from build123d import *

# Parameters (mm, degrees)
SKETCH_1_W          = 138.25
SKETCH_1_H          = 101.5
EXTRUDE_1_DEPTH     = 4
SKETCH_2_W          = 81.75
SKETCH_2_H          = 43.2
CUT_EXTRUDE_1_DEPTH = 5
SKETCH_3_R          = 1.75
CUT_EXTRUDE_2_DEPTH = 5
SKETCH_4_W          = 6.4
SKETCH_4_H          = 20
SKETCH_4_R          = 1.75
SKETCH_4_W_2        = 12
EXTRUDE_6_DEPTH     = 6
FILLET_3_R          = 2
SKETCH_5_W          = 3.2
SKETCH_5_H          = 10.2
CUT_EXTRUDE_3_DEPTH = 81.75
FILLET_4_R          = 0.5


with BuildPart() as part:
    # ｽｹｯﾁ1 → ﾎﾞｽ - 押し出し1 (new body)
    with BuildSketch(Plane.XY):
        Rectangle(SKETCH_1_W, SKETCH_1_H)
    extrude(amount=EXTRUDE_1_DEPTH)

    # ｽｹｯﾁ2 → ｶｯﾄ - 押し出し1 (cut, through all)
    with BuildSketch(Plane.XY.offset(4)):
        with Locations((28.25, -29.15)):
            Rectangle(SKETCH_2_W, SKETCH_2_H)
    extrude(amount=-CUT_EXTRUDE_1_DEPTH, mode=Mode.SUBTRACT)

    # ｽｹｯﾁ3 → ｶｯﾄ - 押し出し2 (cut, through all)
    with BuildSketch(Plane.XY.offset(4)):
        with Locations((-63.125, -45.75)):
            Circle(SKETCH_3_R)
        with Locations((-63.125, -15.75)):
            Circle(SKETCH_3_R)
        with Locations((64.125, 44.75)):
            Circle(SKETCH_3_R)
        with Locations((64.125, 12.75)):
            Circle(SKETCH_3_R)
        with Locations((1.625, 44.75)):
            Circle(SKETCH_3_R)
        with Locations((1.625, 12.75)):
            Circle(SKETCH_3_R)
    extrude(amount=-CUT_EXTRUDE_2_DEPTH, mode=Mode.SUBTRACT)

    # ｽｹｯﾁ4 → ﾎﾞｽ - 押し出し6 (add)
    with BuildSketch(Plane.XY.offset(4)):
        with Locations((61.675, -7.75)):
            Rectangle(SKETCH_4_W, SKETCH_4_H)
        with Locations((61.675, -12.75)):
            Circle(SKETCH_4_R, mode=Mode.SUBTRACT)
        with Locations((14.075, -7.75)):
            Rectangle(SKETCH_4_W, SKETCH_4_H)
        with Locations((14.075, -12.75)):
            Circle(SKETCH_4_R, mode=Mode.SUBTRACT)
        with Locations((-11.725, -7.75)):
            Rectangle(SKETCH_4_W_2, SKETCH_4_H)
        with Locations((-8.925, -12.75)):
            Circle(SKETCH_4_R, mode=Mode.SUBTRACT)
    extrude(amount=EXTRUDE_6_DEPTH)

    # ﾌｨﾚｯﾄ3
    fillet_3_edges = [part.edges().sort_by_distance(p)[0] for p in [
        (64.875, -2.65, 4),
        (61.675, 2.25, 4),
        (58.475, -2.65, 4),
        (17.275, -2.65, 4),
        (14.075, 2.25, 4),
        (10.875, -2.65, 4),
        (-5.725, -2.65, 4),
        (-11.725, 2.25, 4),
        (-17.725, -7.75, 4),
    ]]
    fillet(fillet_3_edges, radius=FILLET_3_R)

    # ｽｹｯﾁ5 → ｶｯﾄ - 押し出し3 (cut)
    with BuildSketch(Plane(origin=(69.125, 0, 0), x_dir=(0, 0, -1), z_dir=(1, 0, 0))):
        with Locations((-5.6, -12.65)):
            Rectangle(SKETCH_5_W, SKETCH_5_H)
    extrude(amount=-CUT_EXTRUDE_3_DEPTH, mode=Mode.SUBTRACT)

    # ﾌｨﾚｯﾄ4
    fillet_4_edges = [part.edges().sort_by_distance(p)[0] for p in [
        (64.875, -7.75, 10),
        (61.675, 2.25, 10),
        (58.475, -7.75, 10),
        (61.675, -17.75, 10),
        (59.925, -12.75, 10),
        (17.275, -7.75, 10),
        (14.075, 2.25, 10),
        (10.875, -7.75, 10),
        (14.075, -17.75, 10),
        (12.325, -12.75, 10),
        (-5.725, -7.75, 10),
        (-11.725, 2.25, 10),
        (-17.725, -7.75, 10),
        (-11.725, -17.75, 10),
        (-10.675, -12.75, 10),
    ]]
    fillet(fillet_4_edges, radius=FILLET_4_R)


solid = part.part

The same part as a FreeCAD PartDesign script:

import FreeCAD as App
import Part
import Sketcher
Q = App.Units.Quantity


def edges_at(feature, points):
    """Names of the edges that pass closest to the given points."""
    edges = feature.Shape.Edges
    near = lambda p: min(range(len(edges)), key=lambda i: edges[i].distToShape(Part.Vertex(*p))[0])
    return sorted({f"Edge{near(p) + 1}" for p in points})


def add_polygon(sketch, points):
    """Adds a closed chain of lines whose ends are joined by coincident constraints."""
    first, n = sketch.GeometryCount, len(points)
    for a, b in zip(points, points[1:] + points[:1]):
        sketch.addGeometry(Part.LineSegment(App.Vector(*a, 0), App.Vector(*b, 0)), False)
    for i in range(n):
        sketch.addConstraint(Sketcher.Constraint("Coincident", first + i, 2, first + (i + 1) % n, 1))

doc = App.newDocument("Part")
params = doc.addObject("Spreadsheet::Sheet", "Params")
for row, (alias, value) in enumerate([
    ("sketch1_height", "101.5 mm"),
    ("sketch1_width", "138.25 mm"),
    ("pad1_length", "4 mm"),
    ("sketch2_height", "43.2 mm"),
    ("sketch2_width", "81.75 mm"),
    ("sketch3_diameter", "3.5 mm"),
    ("sketch4_diameter", "3.5 mm"),
    ("sketch4_width", "12 mm"),
    ("sketch4_height", "20 mm"),
    ("sketch4_width2", "6.4 mm"),
    ("pad2_length", "6 mm"),
    ("fillet_radius", "2 mm"),
    ("sketch5_width", "10.2 mm"),
    ("sketch5_height", "3.2 mm"),
    ("pocket3_length", "81.75 mm"),
    ("fillet2_radius", "0.5 mm"),
], start=1):
    params.set(f"A{row}", alias)
    params.set(f"B{row}", "=" + value)
    params.setAlias(f"B{row}", alias)

body = doc.addObject("PartDesign::Body", "Body")

# Sketch on XY plane
sketch1 = doc.addObject("Sketcher::SketchObject", "Sketch")
body.addObject(sketch1)
sketch1.AttachmentSupport = (doc.XY_Plane, [""])
sketch1.MapMode = "FlatFace"
add_polygon(sketch1, [(-69, 51), (-69, -51), (69, -51), (69, 51)])  # lines 0-3
sketch1.addConstraint([
    Sketcher.Constraint("Vertical", 0),
    Sketcher.Constraint("Horizontal", 1),
    Sketcher.Constraint("Vertical", 2),
    Sketcher.Constraint("Horizontal", 3),
    Sketcher.Constraint("Symmetric", 0, 2, 2, 2, -1, 1),
    Sketcher.Constraint("DistanceY", 0, 2, 0, 1, Q("101.5 mm")),
    Sketcher.Constraint("DistanceX", 1, 1, 1, 2, Q("138.25 mm")),
])
sketch1.setExpression("Constraints[9]", "Params.sketch1_height")
sketch1.setExpression("Constraints[10]", "Params.sketch1_width")
pad1 = doc.addObject("PartDesign::Pad", "Pad")
body.addObject(pad1)
pad1.Profile = sketch1
pad1.setExpression("Length", "Params.pad1_length")

# Sketch on XY plane
sketch2 = doc.addObject("Sketcher::SketchObject", "Sketch001")
body.addObject(sketch2)
sketch2.AttachmentSupport = (doc.XY_Plane, [""])
sketch2.MapMode = "FlatFace"
sketch2.AttachmentOffset = App.Placement(App.Vector(0, 0, 4), App.Rotation())
add_polygon(sketch2, [(-13, -8), (-13, -51), (69, -51), (69, -8)])  # lines 0-3
sketch2.addConstraint([
    Sketcher.Constraint("Vertical", 0),
    Sketcher.Constraint("Horizontal", 1),
    Sketcher.Constraint("Vertical", 2),
    Sketcher.Constraint("Horizontal", 3),
    Sketcher.Constraint("DistanceY", 0, 2, 0, 1, Q("43.2 mm")),
    Sketcher.Constraint("DistanceX", 1, 1, 1, 2, Q("81.75 mm")),
    Sketcher.Constraint("DistanceY", 0, 2, -1, 1, Q("50.75 mm")),
    Sketcher.Constraint("DistanceX", 0, 2, -1, 1, Q("12.625 mm")),
])
sketch2.setExpression("Constraints[8]", "Params.sketch2_height")
sketch2.setExpression("Constraints[9]", "Params.sketch2_width")
pocket1 = doc.addObject("PartDesign::Pocket", "Pocket")
body.addObject(pocket1)
pocket1.Profile = sketch2
pocket1.Type = "ThroughAll"

# Sketch on XY plane
sketch3 = doc.addObject("Sketcher::SketchObject", "Sketch002")
body.addObject(sketch3)
sketch3.AttachmentSupport = (doc.XY_Plane, [""])
sketch3.MapMode = "FlatFace"
sketch3.AttachmentOffset = App.Placement(App.Vector(0, 0, 4), App.Rotation())
sketch3.addGeometry([
    Part.Circle(App.Vector(-63.1, -45.8, 0), App.Vector(0, 0, 1), 1.8),  # 0
    Part.Circle(App.Vector(-63.1, -15.8, 0), App.Vector(0, 0, 1), 1.8),  # 1
    Part.Circle(App.Vector(64.1, 44.8, 0), App.Vector(0, 0, 1), 1.8),  # 2
    Part.Circle(App.Vector(64.1, 12.8, 0), App.Vector(0, 0, 1), 1.8),  # 3
    Part.Circle(App.Vector(1.6, 44.8, 0), App.Vector(0, 0, 1), 1.8),  # 4
    Part.Circle(App.Vector(1.6, 12.8, 0), App.Vector(0, 0, 1), 1.8),  # 5
], False)
sketch3.addConstraint([
    Sketcher.Constraint("Equal", 0, 1),
    Sketcher.Constraint("Equal", 1, 2),
    Sketcher.Constraint("Equal", 2, 3),
    Sketcher.Constraint("Equal", 3, 4),
    Sketcher.Constraint("Equal", 4, 5),
    Sketcher.Constraint("Horizontal", 2, 3, 4, 3),
    Sketcher.Constraint("Horizontal", 3, 3, 5, 3),
    Sketcher.Constraint("Vertical", 0, 3, 1, 3),
    Sketcher.Constraint("Vertical", 2, 3, 3, 3),
    Sketcher.Constraint("Vertical", 4, 3, 5, 3),
    Sketcher.Constraint("Diameter", 0, Q("3.5 mm")),
    Sketcher.Constraint("DistanceY", 0, 3, 1, 3, Q("30 mm")),
    Sketcher.Constraint("DistanceY", 3, 3, 2, 3, Q("32 mm")),
    Sketcher.Constraint("DistanceY", 1, 3, 2, 3, Q("60.5 mm")),
    Sketcher.Constraint("DistanceX", 4, 3, 2, 3, Q("62.5 mm")),
    Sketcher.Constraint("DistanceY", 0, 3, -1, 1, Q("45.75 mm")),
    Sketcher.Constraint("DistanceX", 1, 3, 2, 3, Q("127.25 mm")),
    Sketcher.Constraint("DistanceX", 0, 3, -1, 1, Q("63.125 mm")),
])
sketch3.setExpression("Constraints[10]", "Params.sketch3_diameter")
pocket2 = doc.addObject("PartDesign::Pocket", "Pocket001")
body.addObject(pocket2)
pocket2.Profile = sketch3
pocket2.Type = "ThroughAll"

# Sketch on XY plane
sketch4 = doc.addObject("Sketcher::SketchObject", "Sketch003")
body.addObject(sketch4)
sketch4.AttachmentSupport = (doc.XY_Plane, [""])
sketch4.MapMode = "FlatFace"
sketch4.AttachmentOffset = App.Placement(App.Vector(0, 0, 4), App.Rotation())
add_polygon(sketch4, [(58.5, 2.2), (58.5, -17.8), (64.9, -17.8), (64.9, 2.2)])  # lines 0-3
sketch4.addGeometry(Part.Circle(App.Vector(61.7, -12.8, 0), App.Vector(0, 0, 1), 1.8), False)  # 4
add_polygon(sketch4, [(10.9, 2.2), (10.9, -17.8), (17.3, -17.8), (17.3, 2.2)])  # lines 5-8
sketch4.addGeometry(Part.Circle(App.Vector(14.1, -12.8, 0), App.Vector(0, 0, 1), 1.8), False)  # 9
add_polygon(sketch4, [(-17.7, 2.2), (-17.7, -17.8), (-5.7, -17.8), (-5.7, 2.2)])  # lines 10-13
sketch4.addGeometry(Part.Circle(App.Vector(-8.9, -12.8, 0), App.Vector(0, 0, 1), 1.8), False)  # 14
sketch4.addConstraint([
    Sketcher.Constraint("Vertical", 0),
    Sketcher.Constraint("Horizontal", 1),
    Sketcher.Constraint("Vertical", 2),
    Sketcher.Constraint("Horizontal", 3),
    Sketcher.Constraint("Vertical", 5),
    Sketcher.Constraint("Horizontal", 6),
    Sketcher.Constraint("Vertical", 7),
    Sketcher.Constraint("Horizontal", 8),
    Sketcher.Constraint("Vertical", 10),
    Sketcher.Constraint("Horizontal", 11),
    Sketcher.Constraint("Vertical", 12),
    Sketcher.Constraint("Horizontal", 13),
    Sketcher.Constraint("Equal", 4, 9),
    Sketcher.Constraint("Equal", 9, 14),
    Sketcher.Constraint("Horizontal", 4, 3, 9, 3),
    Sketcher.Constraint("Horizontal", 9, 3, 14, 3),
    Sketcher.Constraint("Horizontal", 1, 2, 5, 2),
    Sketcher.Constraint("Horizontal", 3, 2, 7, 2),
    Sketcher.Constraint("Horizontal", 6, 2, 10, 2),
    Sketcher.Constraint("Horizontal", 8, 2, 12, 2),
    Sketcher.Constraint("Equal", 3, 6),
    Sketcher.Constraint("Diameter", 4, Q("3.5 mm")),
    Sketcher.Constraint("DistanceX", 11, 1, 11, 2, Q("12 mm")),
    Sketcher.Constraint("DistanceY", 0, 2, 0, 1, Q("20 mm")),
    Sketcher.Constraint("DistanceX", 1, 1, 1, 2, Q("6.4 mm")),
    Sketcher.Constraint("DistanceX", 14, 3, 9, 3, Q("23 mm")),
    Sketcher.Constraint("DistanceY", 0, 2, 4, 3, Q("5 mm")),
    Sketcher.Constraint("DistanceX", 10, 2, 6, 2, Q("35 mm")),
    Sketcher.Constraint("DistanceX", 9, 3, 4, 3, Q("47.6 mm")),
    Sketcher.Constraint("DistanceX", 0, 2, 4, 3, Q("3.2 mm")),
    Sketcher.Constraint("DistanceX", 5, 2, 9, 3, Q("3.2 mm")),
    Sketcher.Constraint("DistanceY", 4, 3, -1, 1, Q("12.75 mm")),
    Sketcher.Constraint("DistanceX", -1, 1, 4, 3, Q("61.675 mm")),
])
sketch4.setExpression("Constraints[33]", "Params.sketch4_diameter")
sketch4.setExpression("Constraints[34]", "Params.sketch4_width")
sketch4.setExpression("Constraints[35]", "Params.sketch4_height")
sketch4.setExpression("Constraints[36]", "Params.sketch4_width2")
pad2 = doc.addObject("PartDesign::Pad", "Pad001")
body.addObject(pad2)
pad2.Profile = sketch4
pad2.setExpression("Length", "Params.pad2_length")
doc.recompute()

fillet = doc.addObject("PartDesign::Fillet", "Fillet")
body.addObject(fillet)
fillet.Base = (pad2, edges_at(pad2, [
    (64.875, -2.65, 4),
    (61.675, 2.25, 4),
    (58.475, -2.65, 4),
    (17.275, -2.65, 4),
    (14.075, 2.25, 4),
    (10.875, -2.65, 4),
    (-5.725, -2.65, 4),
    (-11.725, 2.25, 4),
    (-17.725, -7.75, 4),
]))
fillet.setExpression("Radius", "Params.fillet_radius")

# Sketch on YZ plane
sketch5 = doc.addObject("Sketcher::SketchObject", "Sketch004")
body.addObject(sketch5)
sketch5.AttachmentSupport = (doc.YZ_Plane, [""])
sketch5.MapMode = "FlatFace"
sketch5.AttachmentOffset = App.Placement(App.Vector(0, 0, 69.125), App.Rotation())
add_polygon(sketch5, [(-7.5, 7.2), (-17.8, 7.2), (-17.8, 4), (-7.5, 4)])  # lines 0-3
sketch5.addConstraint([
    Sketcher.Constraint("Horizontal", 0),
    Sketcher.Constraint("Vertical", 1),
    Sketcher.Constraint("Horizontal", 2),
    Sketcher.Constraint("Vertical", 3),
    Sketcher.Constraint("DistanceX", 0, 2, 0, 1, Q("10.2 mm")),
    Sketcher.Constraint("DistanceY", 1, 2, 1, 1, Q("3.2 mm")),
    Sketcher.Constraint("DistanceY", -1, 1, 1, 2, Q("4 mm")),
    Sketcher.Constraint("DistanceX", 0, 2, -1, 1, Q("17.75 mm")),
])
sketch5.setExpression("Constraints[8]", "Params.sketch5_width")
sketch5.setExpression("Constraints[9]", "Params.sketch5_height")
pocket3 = doc.addObject("PartDesign::Pocket", "Pocket002")
body.addObject(pocket3)
pocket3.Profile = sketch5
pocket3.setExpression("Length", "Params.pocket3_length")
doc.recompute()

fillet2 = doc.addObject("PartDesign::Fillet", "Fillet001")
body.addObject(fillet2)
fillet2.Base = (pocket3, edges_at(pocket3, [
    (64.875, -7.75, 10),
    (61.675, 2.25, 10),
    (58.475, -7.75, 10),
    (61.675, -17.75, 10),
    (59.925, -12.75, 10),
    (17.275, -7.75, 10),
    (14.075, 2.25, 10),
    (10.875, -7.75, 10),
    (14.075, -17.75, 10),
    (12.325, -12.75, 10),
    (-5.725, -7.75, 10),
    (-11.725, 2.25, 10),
    (-17.725, -7.75, 10),
    (-11.725, -17.75, 10),
    (-10.675, -12.75, 10),
]))
fillet2.setExpression("Radius", "Params.fillet2_radius")

doc.recompute()
